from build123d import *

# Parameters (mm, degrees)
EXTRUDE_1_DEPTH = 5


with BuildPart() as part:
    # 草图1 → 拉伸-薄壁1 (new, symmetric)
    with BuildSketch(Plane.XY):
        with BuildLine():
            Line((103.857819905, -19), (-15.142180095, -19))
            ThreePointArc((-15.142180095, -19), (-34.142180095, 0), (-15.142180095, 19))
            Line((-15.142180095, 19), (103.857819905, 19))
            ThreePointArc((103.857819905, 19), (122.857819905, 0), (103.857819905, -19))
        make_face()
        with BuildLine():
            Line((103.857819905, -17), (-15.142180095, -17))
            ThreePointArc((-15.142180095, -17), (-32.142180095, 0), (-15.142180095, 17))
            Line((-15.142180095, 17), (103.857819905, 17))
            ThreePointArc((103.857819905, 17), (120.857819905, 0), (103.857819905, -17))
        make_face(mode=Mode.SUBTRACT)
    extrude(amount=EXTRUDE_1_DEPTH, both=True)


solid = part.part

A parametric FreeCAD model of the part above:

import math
import FreeCAD as App
import Part
import Sketcher
from FreeCAD import Vector
Q = App.Units.Quantity

doc = App.newDocument("Part")
body = doc.addObject("PartDesign::Body", "Body")

sketch1 = body.newObject("Sketcher::SketchObject", "Sketch")
sketch1.AttachmentSupport = (doc.getObject("XY_Plane"), [""])
sketch1.MapMode = "FlatFace"
sketch1.addGeometry(Part.LineSegment(Vector(-15.14218, -19, 0), Vector(103.85782, -19, 0)), False)
sketch1.addGeometry(Part.ArcOfCircle(Part.Circle(Vector(103.85782, 0, 0), Vector(0, 0, 1), 19), math.radians(-90), math.radians(90)), False)
sketch1.addGeometry(Part.LineSegment(Vector(103.85782, 19, 0), Vector(-15.14218, 19, 0)), False)
sketch1.addGeometry(Part.ArcOfCircle(Part.Circle(Vector(-15.14218, 0, 0), Vector(0, 0, 1), 19), math.radians(90), math.radians(270)), False)
sketch1.addGeometry(Part.LineSegment(Vector(103.85782, -17, 0), Vector(-15.14218, -17, 0)), False)
sketch1.addGeometry(Part.ArcOfCircle(Part.Circle(Vector(-15.14218, 0, 0), Vector(0, 0, 1), 17), math.radians(90), math.radians(270)), False)
sketch1.addGeometry(Part.LineSegment(Vector(-15.14218, 17, 0), Vector(103.85782, 17, 0)), False)
sketch1.addGeometry(Part.ArcOfCircle(Part.Circle(Vector(103.85782, 0, 0), Vector(0, 0, 1), 17), math.radians(-90), math.radians(90)), False)
sketch1.addConstraint(Sketcher.Constraint("Tangent", 0, 2, 1, 1))
sketch1.addConstraint(Sketcher.Constraint("Tangent", 1, 2, 2, 1))
sketch1.addConstraint(Sketcher.Constraint("Tangent", 2, 2, 3, 1))
sketch1.addConstraint(Sketcher.Constraint("Tangent", 3, 2, 0, 1))
sketch1.addConstraint(Sketcher.Constraint("Tangent", 4, 2, 5, 2))
sketch1.addConstraint(Sketcher.Constraint("Tangent", 5, 1, 6, 1))
sketch1.addConstraint(Sketcher.Constraint("Tangent", 6, 2, 7, 2))
sketch1.addConstraint(Sketcher.Constraint("Tangent", 7, 1, 4, 1))
sketch1.addConstraint(Sketcher.Constraint("Horizontal", 0))
sketch1.addConstraint(Sketcher.Constraint("Horizontal", 2))
sketch1.addConstraint(Sketcher.Constraint("Horizontal", 4))
sketch1.addConstraint(Sketcher.Constraint("Horizontal", 6))
sketch1.addConstraint(Sketcher.Constraint("Coincident", 5, 3, 3, 3))
sketch1.addConstraint(Sketcher.Constraint("PointOnObject", 1, 3, -1))
sketch1.addConstraint(Sketcher.Constraint("Vertical", 7, 3, 0, 2))
sketch1.addConstraint(Sketcher.Constraint("Radius", 1, Q("19 mm")))
sketch1.addConstraint(Sketcher.Constraint("Radius", 5, Q("17 mm")))
sketch1.addConstraint(Sketcher.Constraint("DistanceX", 0, 1, 0, 2, Q("119 mm")))
sketch1.addConstraint(Sketcher.Constraint("DistanceX", -1, 1, 1, 3, Q("103.85782 mm")))
pad1 = body.newObject("PartDesign::Pad", "Pad")
pad1.Profile = sketch1
pad1.Length = 10
pad1.Midplane = True

doc.recompute()
